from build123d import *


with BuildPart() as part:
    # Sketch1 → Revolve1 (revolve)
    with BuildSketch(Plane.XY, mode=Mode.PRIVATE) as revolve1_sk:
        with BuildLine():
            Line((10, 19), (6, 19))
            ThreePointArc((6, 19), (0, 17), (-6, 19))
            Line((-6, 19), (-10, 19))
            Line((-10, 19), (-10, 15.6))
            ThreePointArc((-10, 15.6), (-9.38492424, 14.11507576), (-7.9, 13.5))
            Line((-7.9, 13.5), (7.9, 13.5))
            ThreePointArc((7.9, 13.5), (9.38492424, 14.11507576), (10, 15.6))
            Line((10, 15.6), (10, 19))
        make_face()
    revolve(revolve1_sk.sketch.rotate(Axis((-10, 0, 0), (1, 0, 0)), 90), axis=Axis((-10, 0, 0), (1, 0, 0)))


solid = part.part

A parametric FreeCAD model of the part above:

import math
import FreeCAD as App
import Part
import Sketcher
Q = App.Units.Quantity

doc = App.newDocument("Part")
params = doc.addObject("Spreadsheet::Sheet", "Params")
for row, (alias, value) in enumerate([
    ("sketch1_radius", "10 mm"),
    ("sketch1_radius2", "2.1 mm"),
    ("sketch1_width", "4 mm"),
    ("sketch1_width2", "15.8 mm"),
    ("sketch1_height", "3.4 mm"),
    ("revolution_angle", "360 deg"),
], start=1):
    params.set(f"A{row}", alias)
    params.set(f"B{row}", "=" + value)
    params.setAlias(f"B{row}", alias)

body = doc.addObject("PartDesign::Body", "Body")

sketch1 = body.newObject("Sketcher::SketchObject", "Sketch")
sketch1.AttachmentSupport = (doc.getObject("XY_Plane"), [""])
sketch1.MapMode = "FlatFace"
sketch1.addGeometry([
    Part.LineSegment(App.Vector(10, 19, 0), App.Vector(6, 19, 0)),
    Part.ArcOfCircle(Part.Circle(App.Vector(0, 27, 0), App.Vector(0, 0, 1), 10), math.radians(-126.869898), math.radians(-53.130102)),
    Part.LineSegment(App.Vector(-6, 19, 0), App.Vector(-10, 19, 0)),
    Part.LineSegment(App.Vector(-10, 19, 0), App.Vector(-10, 15.6, 0)),
    Part.ArcOfCircle(Part.Circle(App.Vector(-7.9, 15.6, 0), App.Vector(0, 0, 1), 2.1), math.radians(-180), math.radians(-90)),
    Part.LineSegment(App.Vector(-7.9, 13.5, 0), App.Vector(7.9, 13.5, 0)),
    Part.ArcOfCircle(Part.Circle(App.Vector(7.9, 15.6, 0), App.Vector(0, 0, 1), 2.1), math.radians(-90), math.radians(0)),
    Part.LineSegment(App.Vector(10, 15.6, 0), App.Vector(10, 19, 0)),
], False)
sketch1.addConstraint([
    Sketcher.Constraint("Coincident", 0, 2, 1, 2),
    Sketcher.Constraint("Coincident", 1, 1, 2, 1),
    Sketcher.Constraint("Coincident", 2, 2, 3, 1),
    Sketcher.Constraint("Tangent", 3, 2, 4, 1),
    Sketcher.Constraint("Tangent", 4, 2, 5, 1),
    Sketcher.Constraint("Tangent", 5, 2, 6, 1),
    Sketcher.Constraint("Tangent", 6, 2, 7, 1),
    Sketcher.Constraint("Coincident", 7, 2, 0, 1),
    Sketcher.Constraint("Horizontal", 0),
    Sketcher.Constraint("Horizontal", 2),
    Sketcher.Constraint("Vertical", 3),
    Sketcher.Constraint("Horizontal", 5),
    Sketcher.Constraint("Vertical", 7),
    Sketcher.Constraint("Equal", 4, 6),
    Sketcher.Constraint("Symmetric", 0, 2, 1, 1, -2),
    Sketcher.Constraint("Equal", 0, 2),
    Sketcher.Constraint("Radius", 1, Q("10 mm")),
    Sketcher.Constraint("Radius", 4, Q("2.1 mm")),
    Sketcher.Constraint("DistanceX", 0, 2, 0, 1, Q("4 mm")),
    Sketcher.Constraint("DistanceX", 5, 1, 5, 2, Q("15.8 mm")),
    Sketcher.Constraint("DistanceY", 3, 2, 3, 1, Q("3.4 mm")),
    Sketcher.Constraint("DistanceY", -1, 1, 1, 3, Q("27 mm")),
])
sketch1.setExpression("Constraints[16]", "Params.sketch1_radius")
sketch1.setExpression("Constraints[17]", "Params.sketch1_radius2")
sketch1.setExpression("Constraints[18]", "Params.sketch1_width")
sketch1.setExpression("Constraints[19]", "Params.sketch1_width2")
sketch1.setExpression("Constraints[20]", "Params.sketch1_height")
revolution = body.newObject("PartDesign::Revolution", "Revolution")
revolution.Profile = sketch1
revolution.ReferenceAxis = (sketch1, ["H_Axis"])
revolution.setExpression("Angle", "Params.revolution_angle")

doc.recompute()
